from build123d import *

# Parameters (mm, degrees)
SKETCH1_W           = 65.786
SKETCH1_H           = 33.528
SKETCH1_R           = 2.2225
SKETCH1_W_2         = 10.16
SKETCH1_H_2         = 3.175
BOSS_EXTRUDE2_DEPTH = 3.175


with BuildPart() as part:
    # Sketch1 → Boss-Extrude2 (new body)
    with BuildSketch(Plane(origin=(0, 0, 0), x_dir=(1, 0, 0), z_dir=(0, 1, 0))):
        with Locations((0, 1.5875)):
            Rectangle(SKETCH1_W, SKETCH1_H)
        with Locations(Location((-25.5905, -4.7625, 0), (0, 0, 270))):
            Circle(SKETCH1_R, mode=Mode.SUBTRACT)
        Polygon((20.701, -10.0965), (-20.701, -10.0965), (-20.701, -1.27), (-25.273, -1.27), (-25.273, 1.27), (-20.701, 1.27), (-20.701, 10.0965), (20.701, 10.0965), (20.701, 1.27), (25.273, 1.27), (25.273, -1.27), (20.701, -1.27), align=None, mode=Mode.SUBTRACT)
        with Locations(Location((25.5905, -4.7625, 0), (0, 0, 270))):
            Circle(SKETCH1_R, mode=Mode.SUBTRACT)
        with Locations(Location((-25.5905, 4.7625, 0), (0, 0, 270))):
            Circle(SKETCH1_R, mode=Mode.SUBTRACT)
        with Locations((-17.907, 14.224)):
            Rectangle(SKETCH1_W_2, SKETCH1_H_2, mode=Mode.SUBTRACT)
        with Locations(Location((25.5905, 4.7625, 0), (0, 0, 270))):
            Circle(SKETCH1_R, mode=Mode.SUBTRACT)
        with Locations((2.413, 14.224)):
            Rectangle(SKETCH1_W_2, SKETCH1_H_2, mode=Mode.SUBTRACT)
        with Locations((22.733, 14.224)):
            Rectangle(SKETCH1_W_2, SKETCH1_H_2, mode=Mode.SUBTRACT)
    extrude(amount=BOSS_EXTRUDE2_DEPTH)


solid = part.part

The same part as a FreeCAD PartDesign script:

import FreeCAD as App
import Part
import Sketcher
Q = App.Units.Quantity


def add_polygon(sketch, points):
    """Adds a closed chain of lines whose ends are joined by coincident constraints."""
    first, n = sketch.GeometryCount, len(points)
    for a, b in zip(points, points[1:] + points[:1]):
        sketch.addGeometry(Part.LineSegment(App.Vector(*a, 0), App.Vector(*b, 0)), False)
    for i in range(n):
        sketch.addConstraint(Sketcher.Constraint("Coincident", first + i, 2, first + (i + 1) % n, 1))

doc = App.newDocument("Part")
body = doc.addObject("PartDesign::Body", "Body")

sketch1 = body.newObject("Sketcher::SketchObject", "Sketch")
sketch1.AttachmentSupport = (doc.getObject("XZ_Plane"), [""])
sketch1.MapMode = "FlatFace"
add_polygon(sketch1, [(-32.9, -18.4), (-32.9, 15.2), (32.9, 15.2), (32.9, -18.4)])
sketch1.addGeometry(Part.Circle(App.Vector(-25.6, 4.8, 0), App.Vector(0, 0, 1), 2.2), False)
add_polygon(sketch1, [(20.7, 1.3), (20.7, 10.1), (-20.7, 10.1), (-20.7, 1.3), (-25.3, 1.3), (-25.3, -1.3), (-20.7, -1.3), (-20.7, -10.1), (20.7, -10.1), (20.7, -1.3), (25.3, -1.3), (25.3, 1.3)])
sketch1.addGeometry(Part.Circle(App.Vector(25.6, 4.8, 0), App.Vector(0, 0, 1), 2.2), False)
sketch1.addGeometry(Part.Circle(App.Vector(-25.6, -4.8, 0), App.Vector(0, 0, 1), 2.2), False)
add_polygon(sketch1, [(-12.8, -12.6), (-23, -12.6), (-23, -15.8), (-12.8, -15.8)])
sketch1.addGeometry(Part.Circle(App.Vector(25.6, -4.8, 0), App.Vector(0, 0, 1), 2.2), False)
add_polygon(sketch1, [(7.5, -12.6), (-2.7, -12.6), (-2.7, -15.8), (7.5, -15.8)])
add_polygon(sketch1, [(27.8, -12.6), (17.7, -12.6), (17.7, -15.8), (27.8, -15.8)])
sketch1.addConstraint([
    Sketcher.Constraint("Vertical", 0),
    Sketcher.Constraint("Horizontal", 1),
    Sketcher.Constraint("Vertical", 2),
    Sketcher.Constraint("Horizontal", 3),
    Sketcher.Constraint("Vertical", 5),
    Sketcher.Constraint("Horizontal", 6),
    Sketcher.Constraint("Vertical", 7),
    Sketcher.Constraint("Horizontal", 8),
    Sketcher.Constraint("Vertical", 9),
    Sketcher.Constraint("Horizontal", 10),
    Sketcher.Constraint("Vertical", 11),
    Sketcher.Constraint("Horizontal", 12),
    Sketcher.Constraint("Vertical", 13),
    Sketcher.Constraint("Horizontal", 14),
    Sketcher.Constraint("Vertical", 15),
    Sketcher.Constraint("Horizontal", 16),
    Sketcher.Constraint("Horizontal", 19),
    Sketcher.Constraint("Vertical", 20),
    Sketcher.Constraint("Horizontal", 21),
    Sketcher.Constraint("Vertical", 22),
    Sketcher.Constraint("Horizontal", 24),
    Sketcher.Constraint("Vertical", 25),
    Sketcher.Constraint("Horizontal", 26),
    Sketcher.Constraint("Vertical", 27),
    Sketcher.Constraint("Horizontal", 28),
    Sketcher.Constraint("Vertical", 29),
    Sketcher.Constraint("Horizontal", 30),
    Sketcher.Constraint("Vertical", 31),
    Sketcher.Constraint("Equal", 4, 17),
    Sketcher.Constraint("Equal", 17, 18),
    Sketcher.Constraint("Equal", 18, 23),
    Sketcher.Constraint("Symmetric", 17, 3, 18, 3, -1, 1),
    Sketcher.Constraint("Symmetric", 4, 3, 23, 3, -1, 1),
    Sketcher.Constraint("Symmetric", 5, 2, 11, 2, -1, 1),
    Sketcher.Constraint("Symmetric", 7, 2, 13, 2, -1, 1),
    Sketcher.Constraint("Symmetric", 9, 2, 15, 2, -1, 1),
    Sketcher.Constraint("Symmetric", 4, 3, 17, 3, -2),
    Sketcher.Constraint("Symmetric", 10, 2, 13, 2, -2),
    Sketcher.Constraint("Horizontal", 22, 2, 24, 2),
    Sketcher.Constraint("Horizontal", 21, 2, 25, 2),
    Sketcher.Constraint("Horizontal", 27, 2, 28, 2),
    Sketcher.Constraint("Horizontal", 26, 2, 29, 2),
    Sketcher.Constraint("Equal", 21, 24),
    Sketcher.Constraint("Equal", 26, 28),
    Sketcher.Constraint("Diameter", 4, Q("0.175 in")),
    Sketcher.Constraint("DistanceX", 19, 2, 19, 1, Q("0.4 in")),
    Sketcher.Constraint("DistanceY", 9, 2, 9, 1, Q("0.1 in")),
    Sketcher.Constraint("DistanceX", 1, 1, 1, 2, Q("2.59 in")),
    Sketcher.Constraint("DistanceX", 6, 2, 6, 1, Q("1.63 in")),
    Sketcher.Constraint("DistanceX", 8, 2, 8, 1, Q("0.18 in")),
    Sketcher.Constraint("DistanceY", 0, 1, 0, 2, Q("1.32 in")),
    Sketcher.Constraint("DistanceY", 5, 2, 1, 2, Q("0.2 in")),
    Sketcher.Constraint("DistanceX", 0, 2, 8, 2, Q("0.3 in")),
    Sketcher.Constraint("DistanceY", 19, 2, 11, 2, Q("0.1 in")),
    Sketcher.Constraint("DistanceY", 3, 2, 20, 2, Q("0.1 in")),
    Sketcher.Constraint("DistanceX", 22, 2, 24, 2, Q("0.4 in")),
    Sketcher.Constraint("DistanceX", 27, 2, 28, 2, Q("0.4 in")),
    Sketcher.Constraint("DistanceX", 30, 2, 2, 2, Q("0.2 in")),
    Sketcher.Constraint("DistanceY", 20, 2, 20, 1, Q("0.125 in")),
    Sketcher.Constraint("DistanceY", 4, 3, 0, 2, Q("0.41 in")),
    Sketcher.Constraint("DistanceX", 4, 3, 17, 3, Q("2.015 in")),
])
pad1 = body.newObject("PartDesign::Pad", "Pad")
pad1.Profile = sketch1
pad1.Length = Q("0.125 in")
pad1.Reversed = True

doc.recompute()
